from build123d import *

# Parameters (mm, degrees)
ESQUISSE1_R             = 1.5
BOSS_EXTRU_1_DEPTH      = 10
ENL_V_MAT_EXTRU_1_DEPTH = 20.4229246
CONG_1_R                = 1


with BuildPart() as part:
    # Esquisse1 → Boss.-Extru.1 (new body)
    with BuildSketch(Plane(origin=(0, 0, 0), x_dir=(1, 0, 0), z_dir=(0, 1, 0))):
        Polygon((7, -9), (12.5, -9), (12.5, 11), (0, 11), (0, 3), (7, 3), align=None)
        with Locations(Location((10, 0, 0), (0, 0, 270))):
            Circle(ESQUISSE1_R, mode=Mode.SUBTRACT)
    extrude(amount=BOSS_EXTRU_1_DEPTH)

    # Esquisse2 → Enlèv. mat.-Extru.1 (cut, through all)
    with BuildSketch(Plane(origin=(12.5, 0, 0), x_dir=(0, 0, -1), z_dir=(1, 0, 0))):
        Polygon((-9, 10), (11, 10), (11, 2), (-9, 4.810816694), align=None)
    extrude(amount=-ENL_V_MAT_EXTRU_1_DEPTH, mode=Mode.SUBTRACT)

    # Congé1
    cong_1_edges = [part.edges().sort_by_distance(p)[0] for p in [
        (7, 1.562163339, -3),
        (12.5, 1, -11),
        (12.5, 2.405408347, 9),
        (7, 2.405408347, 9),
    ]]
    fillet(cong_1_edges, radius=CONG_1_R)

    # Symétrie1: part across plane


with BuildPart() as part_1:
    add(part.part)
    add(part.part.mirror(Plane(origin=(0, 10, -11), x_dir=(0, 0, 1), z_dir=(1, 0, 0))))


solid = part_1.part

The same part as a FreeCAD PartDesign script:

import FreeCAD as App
import Part
import Sketcher
Q = App.Units.Quantity


def edges_at(feature, points):
    """Names of the edges that pass closest to the given points."""
    edges = feature.Shape.Edges
    near = lambda p: min(range(len(edges)), key=lambda i: edges[i].distToShape(Part.Vertex(*p))[0])
    return sorted({f"Edge{near(p) + 1}" for p in points})

doc = App.newDocument("Part")
params = doc.addObject("Spreadsheet::Sheet", "Params")
for row, (alias, value) in enumerate([
    ("sketch1_diameter", "3 mm"),
    ("sketch1_width", "7 mm"),
    ("sketch1_height", "20 mm"),
    ("sketch1_height2", "8 mm"),
    ("sketch1_width2", "5.5 mm"),
    ("pad1_length", "10 mm"),
    ("sketch2_width", "8 mm"),
    ("sketch2_height", "20 mm"),
    ("fillet_radius", "1 mm"),
], start=1):
    params.set(f"A{row}", alias)
    params.set(f"B{row}", "=" + value)
    params.setAlias(f"B{row}", alias)

body = doc.addObject("PartDesign::Body", "Body")

sketch1 = doc.addObject("Sketcher::SketchObject", "Sketch")
body.addObject(sketch1)
sketch1.AttachmentSupport = (doc.XZ_Plane, [""])
sketch1.MapMode = "FlatFace"
sketch1.addGeometry(Part.LineSegment(App.Vector(7, 9, 0), App.Vector(12.5, 9, 0)), False)
sketch1.addGeometry(Part.LineSegment(App.Vector(12.5, 9, 0), App.Vector(12.5, -11, 0)), False)
sketch1.addGeometry(Part.LineSegment(App.Vector(12.5, -11, 0), App.Vector(0, -11, 0)), False)
sketch1.addGeometry(Part.LineSegment(App.Vector(0, -11, 0), App.Vector(0, -3, 0)), False)
sketch1.addGeometry(Part.LineSegment(App.Vector(0, -3, 0), App.Vector(7, -3, 0)), False)
sketch1.addGeometry(Part.LineSegment(App.Vector(7, -3, 0), App.Vector(7, 9, 0)), False)
sketch1.addGeometry(Part.Circle(App.Vector(10, 0, 0), App.Vector(0, 0, 1), 1.5), False)
sketch1.addConstraint(Sketcher.Constraint("Coincident", 0, 2, 1, 1))
sketch1.addConstraint(Sketcher.Constraint("Coincident", 1, 2, 2, 1))
sketch1.addConstraint(Sketcher.Constraint("Coincident", 2, 2, 3, 1))
sketch1.addConstraint(Sketcher.Constraint("Coincident", 3, 2, 4, 1))
sketch1.addConstraint(Sketcher.Constraint("Coincident", 4, 2, 5, 1))
sketch1.addConstraint(Sketcher.Constraint("Coincident", 5, 2, 0, 1))
sketch1.addConstraint(Sketcher.Constraint("Horizontal", 0))
sketch1.addConstraint(Sketcher.Constraint("Vertical", 1))
sketch1.addConstraint(Sketcher.Constraint("Horizontal", 2))
sketch1.addConstraint(Sketcher.Constraint("Vertical", 3))
sketch1.addConstraint(Sketcher.Constraint("Horizontal", 4))
sketch1.addConstraint(Sketcher.Constraint("Vertical", 5))
sketch1.addConstraint(Sketcher.Constraint("PointOnObject", 6, 3, -1))
sketch1.addConstraint(Sketcher.Constraint("PointOnObject", 2, 2, -2))
sketch1.addConstraint(Sketcher.Constraint("Diameter", 6, 3.0))
sketch1.addConstraint(Sketcher.Constraint("DistanceX", 4, 1, 4, 2, 7.0))
sketch1.addConstraint(Sketcher.Constraint("DistanceY", 1, 2, 1, 1, 20.0))
sketch1.addConstraint(Sketcher.Constraint("DistanceY", 3, 1, 3, 2, 8.0))
sketch1.addConstraint(Sketcher.Constraint("DistanceX", 0, 1, 0, 2, 5.5))
sketch1.addConstraint(Sketcher.Constraint("DistanceX", -1, 1, 6, 3, 10.0))
sketch1.addConstraint(Sketcher.Constraint("DistanceY", -1, 1, 0, 2, 9.0))
sketch1.setExpression("Constraints[14]", "Params.sketch1_diameter")
sketch1.setExpression("Constraints[15]", "Params.sketch1_width")
sketch1.setExpression("Constraints[16]", "Params.sketch1_height")
sketch1.setExpression("Constraints[17]", "Params.sketch1_height2")
sketch1.setExpression("Constraints[18]", "Params.sketch1_width2")
pad1 = doc.addObject("PartDesign::Pad", "Pad")
body.addObject(pad1)
pad1.Profile = sketch1
pad1.setExpression("Length", "Params.pad1_length")
pad1.Reversed = True

sketch2 = doc.addObject("Sketcher::SketchObject", "Sketch001")
body.addObject(sketch2)
sketch2.AttachmentSupport = (doc.YZ_Plane, [""])
sketch2.MapMode = "FlatFace"
sketch2.AttachmentOffset = App.Placement(App.Vector(0, 0, 12.5), App.Rotation())
sketch2.addGeometry(Part.LineSegment(App.Vector(10, -11, 0), App.Vector(10, 9, 0)), False)
sketch2.addGeometry(Part.LineSegment(App.Vector(10, 9, 0), App.Vector(4.810817, 9, 0)), False)
sketch2.addGeometry(Part.LineSegment(App.Vector(4.810817, 9, 0), App.Vector(2, -11, 0)), False)
sketch2.addGeometry(Part.LineSegment(App.Vector(2, -11, 0), App.Vector(10, -11, 0)), False)
sketch2.addConstraint(Sketcher.Constraint("Coincident", 0, 2, 1, 1))
sketch2.addConstraint(Sketcher.Constraint("Coincident", 1, 2, 2, 1))
sketch2.addConstraint(Sketcher.Constraint("Coincident", 2, 2, 3, 1))
sketch2.addConstraint(Sketcher.Constraint("Coincident", 3, 2, 0, 1))
sketch2.addConstraint(Sketcher.Constraint("Vertical", 0))
sketch2.addConstraint(Sketcher.Constraint("Horizontal", 1))
sketch2.addConstraint(Sketcher.Constraint("Horizontal", 3))
sketch2.addConstraint(Sketcher.Constraint("DistanceX", 3, 1, 3, 2, 8.0))
sketch2.addConstraint(Sketcher.Constraint("DistanceY", 0, 1, 0, 2, 20.0))
sketch2.addConstraint(Sketcher.Constraint("Angle", 2, Q("-98 deg")))
sketch2.addConstraint(Sketcher.Constraint("DistanceX", -1, 1, 0, 2, 10.0))
sketch2.addConstraint(Sketcher.Constraint("DistanceY", -1, 1, 0, 2, 9.0))
sketch2.setExpression("Constraints[7]", "Params.sketch2_width")
sketch2.setExpression("Constraints[8]", "Params.sketch2_height")
pocket1 = doc.addObject("PartDesign::Pocket", "Pocket")
body.addObject(pocket1)
pocket1.Profile = sketch2
pocket1.Type = "ThroughAll"
doc.recompute()

fillet = doc.addObject("PartDesign::Fillet", "Fillet")
body.addObject(fillet)
fillet.Base = (pocket1, edges_at(pocket1, [
    (7, 1.562, -3),
    (12.5, 1, -11),
    (12.5, 2.405, 9),
    (7, 2.405, 9),
]))
fillet.setExpression("Radius", "Params.fillet_radius")
body2 = doc.addObject("PartDesign::Body", "Body001")
doc.recompute()

body2.BaseFeature = body
doc.recompute()

mirroring = doc.addObject("Part::Mirroring", "Mirroring")
mirroring.Source = body
mirroring.Base = App.Vector(0, 10, -11)
mirroring.Normal = App.Vector(1, 0, 0)
body3 = doc.addObject("PartDesign::Body", "Body002")
body3.BaseFeature = mirroring
boolean = doc.addObject("PartDesign::Boolean", "Boolean")
body2.addObject(boolean)
boolean.Type = "Fuse"
boolean.addObjects([body3])
doc.recompute()
mirroring.Visibility = False

doc.recompute()
